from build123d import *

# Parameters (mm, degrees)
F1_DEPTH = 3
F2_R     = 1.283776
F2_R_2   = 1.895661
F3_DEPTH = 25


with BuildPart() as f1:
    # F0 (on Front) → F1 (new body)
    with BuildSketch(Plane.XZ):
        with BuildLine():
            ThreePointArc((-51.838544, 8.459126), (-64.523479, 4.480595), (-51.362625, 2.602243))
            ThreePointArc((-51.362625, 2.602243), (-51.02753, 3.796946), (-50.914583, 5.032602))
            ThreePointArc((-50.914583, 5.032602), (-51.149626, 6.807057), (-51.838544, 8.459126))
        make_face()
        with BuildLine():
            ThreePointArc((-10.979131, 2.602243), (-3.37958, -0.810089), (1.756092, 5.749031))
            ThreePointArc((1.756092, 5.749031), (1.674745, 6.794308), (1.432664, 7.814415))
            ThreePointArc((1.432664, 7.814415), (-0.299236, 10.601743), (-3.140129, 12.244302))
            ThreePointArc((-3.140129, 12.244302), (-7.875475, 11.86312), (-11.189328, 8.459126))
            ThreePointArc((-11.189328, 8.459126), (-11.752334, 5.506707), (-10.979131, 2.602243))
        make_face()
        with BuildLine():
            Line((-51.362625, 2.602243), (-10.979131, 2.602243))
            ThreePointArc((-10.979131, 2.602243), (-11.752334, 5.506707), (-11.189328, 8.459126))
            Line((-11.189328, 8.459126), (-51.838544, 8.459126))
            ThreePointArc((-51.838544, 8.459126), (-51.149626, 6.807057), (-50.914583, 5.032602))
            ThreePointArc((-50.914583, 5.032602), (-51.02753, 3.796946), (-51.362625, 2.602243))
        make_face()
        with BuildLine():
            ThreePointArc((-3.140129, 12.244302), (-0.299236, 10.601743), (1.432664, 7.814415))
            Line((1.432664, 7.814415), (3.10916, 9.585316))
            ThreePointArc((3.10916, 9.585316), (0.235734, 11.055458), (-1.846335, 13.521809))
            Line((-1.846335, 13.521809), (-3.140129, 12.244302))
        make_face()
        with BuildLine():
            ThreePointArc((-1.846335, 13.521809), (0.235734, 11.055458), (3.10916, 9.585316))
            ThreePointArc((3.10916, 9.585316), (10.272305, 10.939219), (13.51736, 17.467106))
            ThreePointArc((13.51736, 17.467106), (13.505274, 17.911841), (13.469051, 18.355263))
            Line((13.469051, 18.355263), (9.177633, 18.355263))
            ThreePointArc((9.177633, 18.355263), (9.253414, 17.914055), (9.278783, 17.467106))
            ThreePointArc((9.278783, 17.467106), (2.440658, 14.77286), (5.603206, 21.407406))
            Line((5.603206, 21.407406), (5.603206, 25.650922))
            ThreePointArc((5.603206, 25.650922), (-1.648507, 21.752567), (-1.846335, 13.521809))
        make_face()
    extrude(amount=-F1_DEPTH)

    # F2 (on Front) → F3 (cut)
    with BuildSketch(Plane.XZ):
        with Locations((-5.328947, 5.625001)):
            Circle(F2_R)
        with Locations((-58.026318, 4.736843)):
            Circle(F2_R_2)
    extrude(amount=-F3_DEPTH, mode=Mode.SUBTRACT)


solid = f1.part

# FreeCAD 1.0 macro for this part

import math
import FreeCAD as App
import Part
import Sketcher

doc = App.newDocument("Part")
body = doc.addObject("PartDesign::Body", "Body")

# Sketch on XZ plane
sketch1 = body.newObject("Sketcher::SketchObject", "Sketch")
sketch1.AttachmentSupport = (doc.getObject("XZ_Plane"), [""])
sketch1.MapMode = "FlatFace"
sketch1.addGeometry(Part.ArcOfCircle(Part.Circle(App.Vector(-57.730226, 5.032602, 0), App.Vector(0, 0, 1), 6.815643), math.radians(30.181715), math.radians(339.109361)), False)
sketch1.addGeometry(Part.LineSegment(App.Vector(-51.362625, 2.602243, 0), App.Vector(-10.979131, 2.602243, 0)), False)
sketch1.addGeometry(Part.ArcOfCircle(Part.Circle(App.Vector(-5.000294, 5.74903, 0), App.Vector(0, 0, 1), 6.756386), math.radians(-152.241228), math.radians(0.000009)), False)
sketch1.addGeometry(Part.ArcOfCircle(Part.Circle(App.Vector(-5.000331, 5.749027, 0), App.Vector(0, 0, 1), 6.756423), math.radians(0.000033), math.radians(17.799831)), False)
sketch1.addGeometry(Part.LineSegment(App.Vector(1.432664, 7.814415, 0), App.Vector(3.10916, 9.585316, 0)), False)
sketch1.addGeometry(Part.ArcOfCircle(Part.Circle(App.Vector(5.328949, 17.467106, 0), App.Vector(0, 0, 1), 8.188411), math.radians(-105.729086), math.radians(0.000002)), False)
sketch1.addGeometry(Part.ArcOfCircle(Part.Circle(App.Vector(5.328976, 17.467112, 0), App.Vector(0, 0, 1), 8.188384), math.radians(-0.000045), math.radians(6.22682)), False)
sketch1.addGeometry(Part.LineSegment(App.Vector(13.469051, 18.355263, 0), App.Vector(9.177633, 18.355263, 0)), False)
sketch1.addGeometry(Part.ArcOfCircle(Part.Circle(App.Vector(5.328928, 17.467105, 0), App.Vector(0, 0, 1), 3.949855), math.radians(0.000012), math.radians(12.994548)), False)
sketch1.addGeometry(Part.ArcOfCircle(Part.Circle(App.Vector(5.328949, 17.467105, 0), App.Vector(0, 0, 1), 3.949834), math.radians(86.018465), math.radians(360.000009)), False)
sketch1.addGeometry(Part.LineSegment(App.Vector(5.603206, 21.407406, 0), App.Vector(5.603206, 25.650922, 0)), False)
sketch1.addGeometry(Part.ArcOfCircle(Part.Circle(App.Vector(5.328949, 17.467106, 0), App.Vector(0, 0, 1), 8.18841), math.radians(88.080612), math.radians(208.803995)), False)
sketch1.addGeometry(Part.LineSegment(App.Vector(-1.846335, 13.521809, 0), App.Vector(-3.140129, 12.244302, 0)), False)
sketch1.addGeometry(Part.ArcOfCircle(Part.Circle(App.Vector(-5.000293, 5.749029, 0), App.Vector(0, 0, 1), 6.756388), math.radians(74.018959), math.radians(156.352021)), False)
sketch1.addGeometry(Part.LineSegment(App.Vector(-11.189328, 8.459126, 0), App.Vector(-51.838544, 8.459126, 0)), False)
sketch1.addConstraint(Sketcher.Constraint("Coincident", 0, 2, 1, 1))
sketch1.addConstraint(Sketcher.Constraint("Coincident", 1, 2, 2, 1))
sketch1.addConstraint(Sketcher.Constraint("Coincident", 2, 2, 3, 1))
sketch1.addConstraint(Sketcher.Constraint("Coincident", 3, 2, 4, 1))
sketch1.addConstraint(Sketcher.Constraint("Coincident", 4, 2, 5, 1))
sketch1.addConstraint(Sketcher.Constraint("Coincident", 5, 2, 6, 1))
sketch1.addConstraint(Sketcher.Constraint("Coincident", 6, 2, 7, 1))
sketch1.addConstraint(Sketcher.Constraint("Coincident", 7, 2, 8, 2))
sketch1.addConstraint(Sketcher.Constraint("Coincident", 8, 1, 9, 2))
sketch1.addConstraint(Sketcher.Constraint("Coincident", 9, 1, 10, 1))
sketch1.addConstraint(Sketcher.Constraint("Coincident", 10, 2, 11, 1))
sketch1.addConstraint(Sketcher.Constraint("Coincident", 11, 2, 12, 1))
sketch1.addConstraint(Sketcher.Constraint("Coincident", 12, 2, 13, 1))
sketch1.addConstraint(Sketcher.Constraint("Coincident", 13, 2, 14, 1))
sketch1.addConstraint(Sketcher.Constraint("Coincident", 14, 2, 0, 1))
sketch1.addConstraint(Sketcher.Constraint("Horizontal", 1))
sketch1.addConstraint(Sketcher.Constraint("Horizontal", 7))
sketch1.addConstraint(Sketcher.Constraint("Vertical", 10))
sketch1.addConstraint(Sketcher.Constraint("Horizontal", 14))
sketch1.addConstraint(Sketcher.Constraint("Coincident", 9, 3, 5, 3))
sketch1.addConstraint(Sketcher.Constraint("Coincident", 11, 3, 5, 3))
sketch1.addConstraint(Sketcher.Constraint("Coincident", 13, 3, 2, 3))
sketch1.addConstraint(Sketcher.Constraint("Radius", 5, 8.188411))
sketch1.addConstraint(Sketcher.Constraint("Radius", 11, 8.18841))
sketch1.addConstraint(Sketcher.Constraint("Radius", 13, 6.756388))
sketch1.addConstraint(Sketcher.Constraint("Radius", 0, 6.815643))
sketch1.addConstraint(Sketcher.Constraint("Radius", 2, 6.756386))
sketch1.addConstraint(Sketcher.Constraint("Radius", 3, 6.756423))
sketch1.addConstraint(Sketcher.Constraint("Radius", 6, 8.188384))
sketch1.addConstraint(Sketcher.Constraint("Radius", 8, 3.949855))
sketch1.addConstraint(Sketcher.Constraint("Radius", 9, 3.949834))
sketch1.addConstraint(Sketcher.Constraint("DistanceX", 11, 2, 3, 2, 3.278999))
sketch1.addConstraint(Sketcher.Constraint("DistanceX", 7, 2, 7, 1, 4.291418))
sketch1.addConstraint(Sketcher.Constraint("DistanceY", -1, 1, 0, 3, 5.032602))
sketch1.addConstraint(Sketcher.Constraint("DistanceY", -1, 1, 12, 2, 12.244302))
sketch1.addConstraint(Sketcher.Constraint("DistanceX", 0, 3, 0, 2, 6.367601))
sketch1.addConstraint(Sketcher.Constraint("DistanceX", 1, 2, 3, 3, 5.9788))
sketch1.addConstraint(Sketcher.Constraint("DistanceY", 3, 2, 4, 2, 1.770901))
sketch1.addConstraint(Sketcher.Constraint("DistanceX", 9, 3, 6, 2, 8.140102))
sketch1.addConstraint(Sketcher.Constraint("DistanceY", 11, 3, 9, 1, 3.9403))
sketch1.addConstraint(Sketcher.Constraint("DistanceY", 8, 3, 9, 1, 3.940301))
sketch1.addConstraint(Sketcher.Constraint("DistanceY", 3, 3, 13, 2, 2.710099))
sketch1.addConstraint(Sketcher.Constraint("DistanceX", 13, 2, 12, 2, 8.049199))
sketch1.addConstraint(Sketcher.Constraint("Distance", 4, 2.438592))
sketch1.addConstraint(Sketcher.Constraint("Distance", 12, 1.818221))
sketch1.addConstraint(Sketcher.Constraint("DistanceX", 1, 1, 1, 2, 40.383494))
sketch1.addConstraint(Sketcher.Constraint("DistanceX", 3, 3, -1, 1, 5.000331))
sketch1.addConstraint(Sketcher.Constraint("DistanceX", -1, 1, 5, 3, 5.328949))
sketch1.addConstraint(Sketcher.Constraint("DistanceY", -1, 1, 2, 2, 5.749031))
sketch1.addConstraint(Sketcher.Constraint("DistanceY", -1, 1, 5, 2, 17.467106))
sketch1.addConstraint(Sketcher.Constraint("DistanceY", -1, 1, 8, 1, 17.467106))
pad1 = body.newObject("PartDesign::Pad", "Pad")
pad1.Profile = sketch1
pad1.Length = 3
pad1.Reversed = True

# Sketch on XZ plane
sketch2 = body.newObject("Sketcher::SketchObject", "Sketch001")
sketch2.AttachmentSupport = (doc.getObject("XZ_Plane"), [""])
sketch2.MapMode = "FlatFace"
sketch2.addGeometry(Part.Circle(App.Vector(-5.328947, 5.625001, 0), App.Vector(0, 0, 1), 1.283776), False)
sketch2.addGeometry(Part.Circle(App.Vector(-58.026318, 4.736843, 0), App.Vector(0, 0, 1), 1.895661), False)
sketch2.addConstraint(Sketcher.Constraint("Diameter", 0, 2.567552))
sketch2.addConstraint(Sketcher.Constraint("Diameter", 1, 3.791322))
sketch2.addConstraint(Sketcher.Constraint("DistanceY", -1, 1, 0, 3, 5.625001))
sketch2.addConstraint(Sketcher.Constraint("DistanceX", 1, 3, -1, 1, 58.026318))
sketch2.addConstraint(Sketcher.Constraint("DistanceX", 1, 3, 0, 3, 52.697371))
sketch2.addConstraint(Sketcher.Constraint("DistanceY", -1, 1, 1, 3, 4.736843))
pocket1 = body.newObject("PartDesign::Pocket", "Pocket")
pocket1.Profile = sketch2
pocket1.Length = 25

doc.recompute()
